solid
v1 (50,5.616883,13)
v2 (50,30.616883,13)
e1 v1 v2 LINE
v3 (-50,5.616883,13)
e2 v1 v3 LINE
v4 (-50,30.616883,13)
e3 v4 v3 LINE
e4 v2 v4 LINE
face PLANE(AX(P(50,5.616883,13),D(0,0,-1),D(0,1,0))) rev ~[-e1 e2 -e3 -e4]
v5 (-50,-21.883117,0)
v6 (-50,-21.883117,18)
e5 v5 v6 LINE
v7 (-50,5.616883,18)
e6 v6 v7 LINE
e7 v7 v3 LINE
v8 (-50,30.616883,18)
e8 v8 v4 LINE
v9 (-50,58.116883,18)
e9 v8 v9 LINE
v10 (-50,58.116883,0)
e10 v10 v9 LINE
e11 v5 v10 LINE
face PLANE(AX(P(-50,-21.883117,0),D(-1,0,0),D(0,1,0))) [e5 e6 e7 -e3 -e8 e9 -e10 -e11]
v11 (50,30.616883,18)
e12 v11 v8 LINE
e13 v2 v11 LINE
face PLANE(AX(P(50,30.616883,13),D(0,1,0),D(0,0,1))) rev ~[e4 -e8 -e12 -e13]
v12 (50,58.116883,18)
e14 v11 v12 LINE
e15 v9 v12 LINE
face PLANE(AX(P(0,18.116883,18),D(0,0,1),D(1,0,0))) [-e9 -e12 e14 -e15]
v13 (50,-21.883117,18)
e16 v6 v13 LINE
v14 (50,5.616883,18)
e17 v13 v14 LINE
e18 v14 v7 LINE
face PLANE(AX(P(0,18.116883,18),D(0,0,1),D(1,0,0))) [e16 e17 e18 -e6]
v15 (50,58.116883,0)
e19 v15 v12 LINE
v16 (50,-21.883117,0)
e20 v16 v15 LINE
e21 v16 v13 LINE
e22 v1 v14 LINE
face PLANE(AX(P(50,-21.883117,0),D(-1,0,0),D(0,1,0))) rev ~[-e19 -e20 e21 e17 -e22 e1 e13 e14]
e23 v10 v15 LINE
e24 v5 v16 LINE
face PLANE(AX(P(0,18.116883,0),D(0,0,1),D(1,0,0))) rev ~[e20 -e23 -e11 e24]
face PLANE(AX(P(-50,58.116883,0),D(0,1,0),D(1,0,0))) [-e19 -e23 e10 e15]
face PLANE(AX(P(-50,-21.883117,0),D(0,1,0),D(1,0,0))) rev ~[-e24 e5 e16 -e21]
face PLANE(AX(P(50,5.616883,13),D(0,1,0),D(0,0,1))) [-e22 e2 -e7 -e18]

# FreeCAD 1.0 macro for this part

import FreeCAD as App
import Part
import Sketcher
from FreeCAD import Vector
Q = App.Units.Quantity

doc = App.newDocument("Part")
body = doc.addObject("PartDesign::Body", "Body")

sketch1 = body.newObject("Sketcher::SketchObject", "Sketch")
sketch1.AttachmentSupport = (doc.getObject("XY_Plane"), [""])
sketch1.MapMode = "FlatFace"
sketch1.addGeometry(Part.LineSegment(Vector(-50, 58, 0), Vector(-50, -22, 0)), False)
sketch1.addGeometry(Part.LineSegment(Vector(-50, -22, 0), Vector(50, -22, 0)), False)
sketch1.addGeometry(Part.LineSegment(Vector(50, -22, 0), Vector(50, 58, 0)), False)
sketch1.addGeometry(Part.LineSegment(Vector(50, 58, 0), Vector(-50, 58, 0)), False)
sketch1.addConstraint(Sketcher.Constraint("Coincident", 0, 2, 1, 1))
sketch1.addConstraint(Sketcher.Constraint("Coincident", 1, 2, 2, 1))
sketch1.addConstraint(Sketcher.Constraint("Coincident", 2, 2, 3, 1))
sketch1.addConstraint(Sketcher.Constraint("Coincident", 3, 2, 0, 1))
sketch1.addConstraint(Sketcher.Constraint("Vertical", 0))
sketch1.addConstraint(Sketcher.Constraint("Horizontal", 1))
sketch1.addConstraint(Sketcher.Constraint("Vertical", 2))
sketch1.addConstraint(Sketcher.Constraint("Horizontal", 3))
sketch1.addConstraint(Sketcher.Constraint("DistanceX", 1, 1, 1, 2, Q("100 mm")))
sketch1.addConstraint(Sketcher.Constraint("DistanceY", 0, 2, 0, 1, Q("80 mm")))
sketch1.addConstraint(Sketcher.Constraint("DistanceX", 0, 2, -1, 1, Q("50 mm")))
sketch1.addConstraint(Sketcher.Constraint("DistanceY", 0, 2, -1, 1, Q("21.883117 mm")))
pad1 = body.newObject("PartDesign::Pad", "Pad")
pad1.Profile = sketch1
pad1.Length = 18

sketch2 = body.newObject("Sketcher::SketchObject", "Sketch001")
sketch2.AttachmentSupport = (doc.getObject("YZ_Plane"), [""])
sketch2.MapMode = "FlatFace"
sketch2.AttachmentOffset = App.Placement(Vector(0, 0, 50), App.Rotation())
sketch2.addGeometry(Part.LineSegment(Vector(6, 23, 0), Vector(6, 13, 0)), False)
sketch2.addGeometry(Part.LineSegment(Vector(6, 13, 0), Vector(31, 13, 0)), False)
sketch2.addGeometry(Part.LineSegment(Vector(31, 13, 0), Vector(31, 23, 0)), False)
sketch2.addGeometry(Part.LineSegment(Vector(31, 23, 0), Vector(6, 23, 0)), False)
sketch2.addConstraint(Sketcher.Constraint("Coincident", 0, 2, 1, 1))
sketch2.addConstraint(Sketcher.Constraint("Coincident", 1, 2, 2, 1))
sketch2.addConstraint(Sketcher.Constraint("Coincident", 2, 2, 3, 1))
sketch2.addConstraint(Sketcher.Constraint("Coincident", 3, 2, 0, 1))
sketch2.addConstraint(Sketcher.Constraint("Vertical", 0))
sketch2.addConstraint(Sketcher.Constraint("Horizontal", 1))
sketch2.addConstraint(Sketcher.Constraint("Vertical", 2))
sketch2.addConstraint(Sketcher.Constraint("Horizontal", 3))
sketch2.addConstraint(Sketcher.Constraint("DistanceX", 1, 1, 1, 2, Q("25 mm")))
sketch2.addConstraint(Sketcher.Constraint("DistanceY", 0, 2, 0, 1, Q("10 mm")))
sketch2.addConstraint(Sketcher.Constraint("DistanceY", -1, 1, 0, 2, Q("13 mm")))
sketch2.addConstraint(Sketcher.Constraint("DistanceX", -1, 1, 0, 2, Q("5.616883 mm")))
pocket1 = body.newObject("PartDesign::Pocket", "Pocket")
pocket1.Profile = sketch2
pocket1.Type = "ThroughAll"

doc.recompute()
